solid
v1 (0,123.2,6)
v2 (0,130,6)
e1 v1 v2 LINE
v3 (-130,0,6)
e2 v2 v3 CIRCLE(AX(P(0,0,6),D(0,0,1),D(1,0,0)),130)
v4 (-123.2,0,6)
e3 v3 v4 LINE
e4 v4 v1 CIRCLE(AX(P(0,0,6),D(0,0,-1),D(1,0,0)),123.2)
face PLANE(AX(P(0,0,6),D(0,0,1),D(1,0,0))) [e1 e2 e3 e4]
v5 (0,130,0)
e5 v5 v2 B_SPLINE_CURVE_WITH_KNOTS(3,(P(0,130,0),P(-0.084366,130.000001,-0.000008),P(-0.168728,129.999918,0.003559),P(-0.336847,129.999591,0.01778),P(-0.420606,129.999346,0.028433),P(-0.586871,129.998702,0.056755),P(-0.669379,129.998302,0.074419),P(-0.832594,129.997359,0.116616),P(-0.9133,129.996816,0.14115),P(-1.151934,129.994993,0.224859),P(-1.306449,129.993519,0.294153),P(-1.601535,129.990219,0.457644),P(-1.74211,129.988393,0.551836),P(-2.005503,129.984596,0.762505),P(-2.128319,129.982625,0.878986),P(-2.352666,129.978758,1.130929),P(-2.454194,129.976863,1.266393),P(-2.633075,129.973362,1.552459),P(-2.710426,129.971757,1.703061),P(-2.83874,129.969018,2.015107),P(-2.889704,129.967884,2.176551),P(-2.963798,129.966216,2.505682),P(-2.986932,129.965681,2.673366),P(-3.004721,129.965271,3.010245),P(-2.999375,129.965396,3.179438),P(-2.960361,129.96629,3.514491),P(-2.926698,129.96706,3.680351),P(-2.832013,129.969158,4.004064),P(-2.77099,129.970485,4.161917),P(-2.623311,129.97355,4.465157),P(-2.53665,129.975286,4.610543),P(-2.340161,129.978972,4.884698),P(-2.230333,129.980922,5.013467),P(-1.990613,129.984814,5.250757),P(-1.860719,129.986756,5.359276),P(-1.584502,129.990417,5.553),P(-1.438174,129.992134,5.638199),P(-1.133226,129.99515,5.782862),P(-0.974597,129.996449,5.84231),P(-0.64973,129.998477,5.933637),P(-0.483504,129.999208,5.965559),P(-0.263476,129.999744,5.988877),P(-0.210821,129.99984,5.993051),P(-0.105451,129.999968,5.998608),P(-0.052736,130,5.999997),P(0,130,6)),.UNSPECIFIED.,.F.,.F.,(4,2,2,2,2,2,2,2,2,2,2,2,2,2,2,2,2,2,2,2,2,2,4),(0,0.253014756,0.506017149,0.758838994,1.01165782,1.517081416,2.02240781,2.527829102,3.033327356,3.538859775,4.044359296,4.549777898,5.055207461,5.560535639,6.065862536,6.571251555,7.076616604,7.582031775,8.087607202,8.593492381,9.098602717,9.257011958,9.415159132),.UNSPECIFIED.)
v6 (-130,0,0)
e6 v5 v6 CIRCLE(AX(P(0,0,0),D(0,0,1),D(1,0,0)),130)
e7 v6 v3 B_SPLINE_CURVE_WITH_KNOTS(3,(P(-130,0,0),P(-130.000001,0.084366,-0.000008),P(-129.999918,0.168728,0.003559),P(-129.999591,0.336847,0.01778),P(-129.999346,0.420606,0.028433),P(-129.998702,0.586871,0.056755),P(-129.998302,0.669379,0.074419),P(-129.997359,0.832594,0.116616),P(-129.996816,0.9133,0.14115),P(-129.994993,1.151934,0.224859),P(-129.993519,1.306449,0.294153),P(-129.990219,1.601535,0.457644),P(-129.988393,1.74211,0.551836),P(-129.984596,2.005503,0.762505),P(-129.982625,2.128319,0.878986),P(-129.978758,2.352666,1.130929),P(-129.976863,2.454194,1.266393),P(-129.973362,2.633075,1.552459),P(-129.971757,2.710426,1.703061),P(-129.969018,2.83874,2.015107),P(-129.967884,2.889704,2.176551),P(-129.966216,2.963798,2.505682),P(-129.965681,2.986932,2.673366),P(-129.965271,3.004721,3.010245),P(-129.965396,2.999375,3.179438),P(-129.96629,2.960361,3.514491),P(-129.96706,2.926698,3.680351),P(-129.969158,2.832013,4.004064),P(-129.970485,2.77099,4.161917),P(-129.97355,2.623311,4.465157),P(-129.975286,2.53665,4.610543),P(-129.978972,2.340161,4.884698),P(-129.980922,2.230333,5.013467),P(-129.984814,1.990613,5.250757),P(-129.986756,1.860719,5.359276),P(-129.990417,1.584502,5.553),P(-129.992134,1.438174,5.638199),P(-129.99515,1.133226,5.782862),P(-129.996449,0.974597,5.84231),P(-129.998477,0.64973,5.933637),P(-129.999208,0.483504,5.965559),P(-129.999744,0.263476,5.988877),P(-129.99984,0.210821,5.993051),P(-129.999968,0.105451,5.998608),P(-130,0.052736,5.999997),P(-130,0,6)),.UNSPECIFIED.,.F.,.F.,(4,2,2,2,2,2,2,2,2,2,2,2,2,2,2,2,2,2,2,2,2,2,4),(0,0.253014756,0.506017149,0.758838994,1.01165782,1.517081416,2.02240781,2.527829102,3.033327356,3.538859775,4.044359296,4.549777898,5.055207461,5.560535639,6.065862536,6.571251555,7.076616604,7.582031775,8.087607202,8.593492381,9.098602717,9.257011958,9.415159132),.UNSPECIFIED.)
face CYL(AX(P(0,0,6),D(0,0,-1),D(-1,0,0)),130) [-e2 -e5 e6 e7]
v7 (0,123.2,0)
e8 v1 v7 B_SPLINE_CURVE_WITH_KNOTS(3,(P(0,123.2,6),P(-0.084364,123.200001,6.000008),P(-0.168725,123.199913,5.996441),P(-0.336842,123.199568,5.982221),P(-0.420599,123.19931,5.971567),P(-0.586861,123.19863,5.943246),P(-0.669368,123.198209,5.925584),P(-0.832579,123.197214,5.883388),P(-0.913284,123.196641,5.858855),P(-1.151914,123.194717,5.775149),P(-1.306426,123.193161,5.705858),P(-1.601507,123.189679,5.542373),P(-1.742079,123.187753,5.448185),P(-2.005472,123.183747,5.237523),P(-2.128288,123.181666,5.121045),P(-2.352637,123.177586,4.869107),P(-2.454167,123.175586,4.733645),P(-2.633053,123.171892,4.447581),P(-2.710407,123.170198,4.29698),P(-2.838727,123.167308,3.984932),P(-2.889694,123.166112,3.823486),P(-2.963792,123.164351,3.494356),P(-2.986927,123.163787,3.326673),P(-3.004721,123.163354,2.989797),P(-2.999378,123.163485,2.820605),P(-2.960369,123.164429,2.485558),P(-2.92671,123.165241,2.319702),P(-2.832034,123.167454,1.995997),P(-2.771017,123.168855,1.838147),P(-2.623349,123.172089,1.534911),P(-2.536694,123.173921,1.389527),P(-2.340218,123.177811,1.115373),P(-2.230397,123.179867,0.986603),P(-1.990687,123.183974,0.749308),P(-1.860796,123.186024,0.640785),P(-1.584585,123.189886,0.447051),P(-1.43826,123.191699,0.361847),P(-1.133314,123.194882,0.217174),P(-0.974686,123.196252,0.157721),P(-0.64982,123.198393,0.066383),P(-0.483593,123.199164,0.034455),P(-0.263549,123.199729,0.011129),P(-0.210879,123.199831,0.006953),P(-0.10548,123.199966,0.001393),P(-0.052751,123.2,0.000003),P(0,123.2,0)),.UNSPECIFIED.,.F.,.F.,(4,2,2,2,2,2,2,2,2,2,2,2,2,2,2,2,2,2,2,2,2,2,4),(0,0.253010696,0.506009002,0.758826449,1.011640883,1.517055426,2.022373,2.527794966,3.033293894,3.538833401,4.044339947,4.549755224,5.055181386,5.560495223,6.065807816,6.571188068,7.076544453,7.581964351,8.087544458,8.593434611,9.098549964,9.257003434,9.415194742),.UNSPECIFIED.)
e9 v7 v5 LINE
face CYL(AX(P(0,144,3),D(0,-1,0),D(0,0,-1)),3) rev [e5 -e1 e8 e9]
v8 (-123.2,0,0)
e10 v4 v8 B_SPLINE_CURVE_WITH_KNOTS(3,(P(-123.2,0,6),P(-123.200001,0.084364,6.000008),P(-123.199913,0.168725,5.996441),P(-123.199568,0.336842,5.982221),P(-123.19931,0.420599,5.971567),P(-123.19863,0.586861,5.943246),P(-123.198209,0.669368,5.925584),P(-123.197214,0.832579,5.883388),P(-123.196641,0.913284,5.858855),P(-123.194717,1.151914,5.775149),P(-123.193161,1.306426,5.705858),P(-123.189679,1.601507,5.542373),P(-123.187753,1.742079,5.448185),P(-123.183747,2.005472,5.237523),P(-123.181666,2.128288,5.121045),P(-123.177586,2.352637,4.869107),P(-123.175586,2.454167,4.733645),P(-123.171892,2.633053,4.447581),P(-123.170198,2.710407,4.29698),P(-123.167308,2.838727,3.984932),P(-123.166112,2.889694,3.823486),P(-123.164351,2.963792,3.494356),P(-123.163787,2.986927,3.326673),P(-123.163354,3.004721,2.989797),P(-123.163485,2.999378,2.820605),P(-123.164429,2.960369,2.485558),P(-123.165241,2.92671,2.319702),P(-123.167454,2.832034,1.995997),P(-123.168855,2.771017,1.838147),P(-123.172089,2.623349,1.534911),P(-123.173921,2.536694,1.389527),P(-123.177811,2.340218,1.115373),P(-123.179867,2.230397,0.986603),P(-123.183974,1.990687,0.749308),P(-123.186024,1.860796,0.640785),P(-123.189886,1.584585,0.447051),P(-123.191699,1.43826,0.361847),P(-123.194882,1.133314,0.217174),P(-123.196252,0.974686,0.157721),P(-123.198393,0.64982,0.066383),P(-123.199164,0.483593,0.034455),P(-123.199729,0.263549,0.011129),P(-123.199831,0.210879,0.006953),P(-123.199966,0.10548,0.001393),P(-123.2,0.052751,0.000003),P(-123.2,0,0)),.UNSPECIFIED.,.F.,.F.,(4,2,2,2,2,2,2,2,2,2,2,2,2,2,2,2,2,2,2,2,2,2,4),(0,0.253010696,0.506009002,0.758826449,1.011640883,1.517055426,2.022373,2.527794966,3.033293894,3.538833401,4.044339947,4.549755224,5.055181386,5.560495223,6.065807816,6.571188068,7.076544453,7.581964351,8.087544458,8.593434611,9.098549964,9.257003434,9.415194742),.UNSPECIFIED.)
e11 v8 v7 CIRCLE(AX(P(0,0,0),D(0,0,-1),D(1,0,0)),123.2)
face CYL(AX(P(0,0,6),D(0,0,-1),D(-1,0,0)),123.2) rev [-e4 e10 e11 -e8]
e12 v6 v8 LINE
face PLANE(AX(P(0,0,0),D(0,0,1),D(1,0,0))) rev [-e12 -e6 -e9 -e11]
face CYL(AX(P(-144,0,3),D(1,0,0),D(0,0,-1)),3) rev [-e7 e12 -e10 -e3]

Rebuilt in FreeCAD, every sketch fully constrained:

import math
import FreeCAD as App
import Part
import Sketcher

V = App.Vector

doc = App.newDocument("Part")
body = doc.addObject("PartDesign::Body", "Body")

# Sketch on XY plane
sketch1 = body.newObject("Sketcher::SketchObject", "Sketch")
sketch1.AttachmentSupport = (doc.getObject("XY_Plane"), [""])
sketch1.MapMode = "FlatFace"
sketch1.addGeometry(Part.LineSegment(V(0, 123, 0), V(0, 130, 0)), False)
sketch1.addGeometry(Part.ArcOfCircle(Part.Circle(V(0, 0, 0), V(0, 0, 1), 130), math.radians(90), math.radians(180)), False)
sketch1.addGeometry(Part.LineSegment(V(-130, 0, 0), V(-123, 0, 0)), False)
sketch1.addGeometry(Part.ArcOfCircle(Part.Circle(V(0, 0, 0), V(0, 0, 1), 123), math.radians(90), math.radians(180)), False)
sketch1.addConstraint(Sketcher.Constraint("Coincident", 0, 2, 1, 1))
sketch1.addConstraint(Sketcher.Constraint("Coincident", 1, 2, 2, 1))
sketch1.addConstraint(Sketcher.Constraint("Coincident", 2, 2, 3, 2))
sketch1.addConstraint(Sketcher.Constraint("Coincident", 3, 1, 0, 1))
sketch1.addConstraint(Sketcher.Constraint("Vertical", 0))
sketch1.addConstraint(Sketcher.Constraint("Horizontal", 2))
sketch1.addConstraint(Sketcher.Constraint("Coincident", 1, 3, -1, 1))
sketch1.addConstraint(Sketcher.Constraint("Coincident", 3, 3, -1, 1))
sketch1.addConstraint(Sketcher.Constraint("PointOnObject", 0, 2, -2))
sketch1.addConstraint(Sketcher.Constraint("PointOnObject", 1, 2, -1))
sketch1.addConstraint(Sketcher.Constraint("Radius", 1, 130.0))
sketch1.addConstraint(Sketcher.Constraint("Radius", 3, 123.2))
pad1 = body.newObject("PartDesign::Pad", "Pad")
pad1.Profile = sketch1
pad1.Length = 6

# Sketch on XZ plane
sketch2 = body.newObject("Sketcher::SketchObject", "Sketch001")
sketch2.AttachmentSupport = (doc.getObject("XZ_Plane"), [""])
sketch2.MapMode = "FlatFace"
sketch2.addGeometry(Part.Circle(V(0, 3, 0), V(0, 0, 1), 3), False)
sketch2.addConstraint(Sketcher.Constraint("PointOnObject", 0, 3, -2))
sketch2.addConstraint(Sketcher.Constraint("Diameter", 0, 6.0))
sketch2.addConstraint(Sketcher.Constraint("DistanceY", -1, 1, 0, 3, 3.0))
pocket1 = body.newObject("PartDesign::Pocket", "Pocket")
pocket1.Profile = sketch2
pocket1.Length = 144

# Sketch on YZ plane
sketch3 = body.newObject("Sketcher::SketchObject", "Sketch002")
sketch3.AttachmentSupport = (doc.getObject("YZ_Plane"), [""])
sketch3.MapMode = "FlatFace"
sketch3.addGeometry(Part.Circle(V(0, 3, 0), V(0, 0, 1), 3), False)
sketch3.addConstraint(Sketcher.Constraint("PointOnObject", 0, 3, -2))
sketch3.addConstraint(Sketcher.Constraint("Diameter", 0, 6.0))
sketch3.addConstraint(Sketcher.Constraint("DistanceY", -1, 1, 0, 3, 3.0))
pocket2 = body.newObject("PartDesign::Pocket", "Pocket001")
pocket2.Profile = sketch3
pocket2.Length = 144

doc.recompute()
